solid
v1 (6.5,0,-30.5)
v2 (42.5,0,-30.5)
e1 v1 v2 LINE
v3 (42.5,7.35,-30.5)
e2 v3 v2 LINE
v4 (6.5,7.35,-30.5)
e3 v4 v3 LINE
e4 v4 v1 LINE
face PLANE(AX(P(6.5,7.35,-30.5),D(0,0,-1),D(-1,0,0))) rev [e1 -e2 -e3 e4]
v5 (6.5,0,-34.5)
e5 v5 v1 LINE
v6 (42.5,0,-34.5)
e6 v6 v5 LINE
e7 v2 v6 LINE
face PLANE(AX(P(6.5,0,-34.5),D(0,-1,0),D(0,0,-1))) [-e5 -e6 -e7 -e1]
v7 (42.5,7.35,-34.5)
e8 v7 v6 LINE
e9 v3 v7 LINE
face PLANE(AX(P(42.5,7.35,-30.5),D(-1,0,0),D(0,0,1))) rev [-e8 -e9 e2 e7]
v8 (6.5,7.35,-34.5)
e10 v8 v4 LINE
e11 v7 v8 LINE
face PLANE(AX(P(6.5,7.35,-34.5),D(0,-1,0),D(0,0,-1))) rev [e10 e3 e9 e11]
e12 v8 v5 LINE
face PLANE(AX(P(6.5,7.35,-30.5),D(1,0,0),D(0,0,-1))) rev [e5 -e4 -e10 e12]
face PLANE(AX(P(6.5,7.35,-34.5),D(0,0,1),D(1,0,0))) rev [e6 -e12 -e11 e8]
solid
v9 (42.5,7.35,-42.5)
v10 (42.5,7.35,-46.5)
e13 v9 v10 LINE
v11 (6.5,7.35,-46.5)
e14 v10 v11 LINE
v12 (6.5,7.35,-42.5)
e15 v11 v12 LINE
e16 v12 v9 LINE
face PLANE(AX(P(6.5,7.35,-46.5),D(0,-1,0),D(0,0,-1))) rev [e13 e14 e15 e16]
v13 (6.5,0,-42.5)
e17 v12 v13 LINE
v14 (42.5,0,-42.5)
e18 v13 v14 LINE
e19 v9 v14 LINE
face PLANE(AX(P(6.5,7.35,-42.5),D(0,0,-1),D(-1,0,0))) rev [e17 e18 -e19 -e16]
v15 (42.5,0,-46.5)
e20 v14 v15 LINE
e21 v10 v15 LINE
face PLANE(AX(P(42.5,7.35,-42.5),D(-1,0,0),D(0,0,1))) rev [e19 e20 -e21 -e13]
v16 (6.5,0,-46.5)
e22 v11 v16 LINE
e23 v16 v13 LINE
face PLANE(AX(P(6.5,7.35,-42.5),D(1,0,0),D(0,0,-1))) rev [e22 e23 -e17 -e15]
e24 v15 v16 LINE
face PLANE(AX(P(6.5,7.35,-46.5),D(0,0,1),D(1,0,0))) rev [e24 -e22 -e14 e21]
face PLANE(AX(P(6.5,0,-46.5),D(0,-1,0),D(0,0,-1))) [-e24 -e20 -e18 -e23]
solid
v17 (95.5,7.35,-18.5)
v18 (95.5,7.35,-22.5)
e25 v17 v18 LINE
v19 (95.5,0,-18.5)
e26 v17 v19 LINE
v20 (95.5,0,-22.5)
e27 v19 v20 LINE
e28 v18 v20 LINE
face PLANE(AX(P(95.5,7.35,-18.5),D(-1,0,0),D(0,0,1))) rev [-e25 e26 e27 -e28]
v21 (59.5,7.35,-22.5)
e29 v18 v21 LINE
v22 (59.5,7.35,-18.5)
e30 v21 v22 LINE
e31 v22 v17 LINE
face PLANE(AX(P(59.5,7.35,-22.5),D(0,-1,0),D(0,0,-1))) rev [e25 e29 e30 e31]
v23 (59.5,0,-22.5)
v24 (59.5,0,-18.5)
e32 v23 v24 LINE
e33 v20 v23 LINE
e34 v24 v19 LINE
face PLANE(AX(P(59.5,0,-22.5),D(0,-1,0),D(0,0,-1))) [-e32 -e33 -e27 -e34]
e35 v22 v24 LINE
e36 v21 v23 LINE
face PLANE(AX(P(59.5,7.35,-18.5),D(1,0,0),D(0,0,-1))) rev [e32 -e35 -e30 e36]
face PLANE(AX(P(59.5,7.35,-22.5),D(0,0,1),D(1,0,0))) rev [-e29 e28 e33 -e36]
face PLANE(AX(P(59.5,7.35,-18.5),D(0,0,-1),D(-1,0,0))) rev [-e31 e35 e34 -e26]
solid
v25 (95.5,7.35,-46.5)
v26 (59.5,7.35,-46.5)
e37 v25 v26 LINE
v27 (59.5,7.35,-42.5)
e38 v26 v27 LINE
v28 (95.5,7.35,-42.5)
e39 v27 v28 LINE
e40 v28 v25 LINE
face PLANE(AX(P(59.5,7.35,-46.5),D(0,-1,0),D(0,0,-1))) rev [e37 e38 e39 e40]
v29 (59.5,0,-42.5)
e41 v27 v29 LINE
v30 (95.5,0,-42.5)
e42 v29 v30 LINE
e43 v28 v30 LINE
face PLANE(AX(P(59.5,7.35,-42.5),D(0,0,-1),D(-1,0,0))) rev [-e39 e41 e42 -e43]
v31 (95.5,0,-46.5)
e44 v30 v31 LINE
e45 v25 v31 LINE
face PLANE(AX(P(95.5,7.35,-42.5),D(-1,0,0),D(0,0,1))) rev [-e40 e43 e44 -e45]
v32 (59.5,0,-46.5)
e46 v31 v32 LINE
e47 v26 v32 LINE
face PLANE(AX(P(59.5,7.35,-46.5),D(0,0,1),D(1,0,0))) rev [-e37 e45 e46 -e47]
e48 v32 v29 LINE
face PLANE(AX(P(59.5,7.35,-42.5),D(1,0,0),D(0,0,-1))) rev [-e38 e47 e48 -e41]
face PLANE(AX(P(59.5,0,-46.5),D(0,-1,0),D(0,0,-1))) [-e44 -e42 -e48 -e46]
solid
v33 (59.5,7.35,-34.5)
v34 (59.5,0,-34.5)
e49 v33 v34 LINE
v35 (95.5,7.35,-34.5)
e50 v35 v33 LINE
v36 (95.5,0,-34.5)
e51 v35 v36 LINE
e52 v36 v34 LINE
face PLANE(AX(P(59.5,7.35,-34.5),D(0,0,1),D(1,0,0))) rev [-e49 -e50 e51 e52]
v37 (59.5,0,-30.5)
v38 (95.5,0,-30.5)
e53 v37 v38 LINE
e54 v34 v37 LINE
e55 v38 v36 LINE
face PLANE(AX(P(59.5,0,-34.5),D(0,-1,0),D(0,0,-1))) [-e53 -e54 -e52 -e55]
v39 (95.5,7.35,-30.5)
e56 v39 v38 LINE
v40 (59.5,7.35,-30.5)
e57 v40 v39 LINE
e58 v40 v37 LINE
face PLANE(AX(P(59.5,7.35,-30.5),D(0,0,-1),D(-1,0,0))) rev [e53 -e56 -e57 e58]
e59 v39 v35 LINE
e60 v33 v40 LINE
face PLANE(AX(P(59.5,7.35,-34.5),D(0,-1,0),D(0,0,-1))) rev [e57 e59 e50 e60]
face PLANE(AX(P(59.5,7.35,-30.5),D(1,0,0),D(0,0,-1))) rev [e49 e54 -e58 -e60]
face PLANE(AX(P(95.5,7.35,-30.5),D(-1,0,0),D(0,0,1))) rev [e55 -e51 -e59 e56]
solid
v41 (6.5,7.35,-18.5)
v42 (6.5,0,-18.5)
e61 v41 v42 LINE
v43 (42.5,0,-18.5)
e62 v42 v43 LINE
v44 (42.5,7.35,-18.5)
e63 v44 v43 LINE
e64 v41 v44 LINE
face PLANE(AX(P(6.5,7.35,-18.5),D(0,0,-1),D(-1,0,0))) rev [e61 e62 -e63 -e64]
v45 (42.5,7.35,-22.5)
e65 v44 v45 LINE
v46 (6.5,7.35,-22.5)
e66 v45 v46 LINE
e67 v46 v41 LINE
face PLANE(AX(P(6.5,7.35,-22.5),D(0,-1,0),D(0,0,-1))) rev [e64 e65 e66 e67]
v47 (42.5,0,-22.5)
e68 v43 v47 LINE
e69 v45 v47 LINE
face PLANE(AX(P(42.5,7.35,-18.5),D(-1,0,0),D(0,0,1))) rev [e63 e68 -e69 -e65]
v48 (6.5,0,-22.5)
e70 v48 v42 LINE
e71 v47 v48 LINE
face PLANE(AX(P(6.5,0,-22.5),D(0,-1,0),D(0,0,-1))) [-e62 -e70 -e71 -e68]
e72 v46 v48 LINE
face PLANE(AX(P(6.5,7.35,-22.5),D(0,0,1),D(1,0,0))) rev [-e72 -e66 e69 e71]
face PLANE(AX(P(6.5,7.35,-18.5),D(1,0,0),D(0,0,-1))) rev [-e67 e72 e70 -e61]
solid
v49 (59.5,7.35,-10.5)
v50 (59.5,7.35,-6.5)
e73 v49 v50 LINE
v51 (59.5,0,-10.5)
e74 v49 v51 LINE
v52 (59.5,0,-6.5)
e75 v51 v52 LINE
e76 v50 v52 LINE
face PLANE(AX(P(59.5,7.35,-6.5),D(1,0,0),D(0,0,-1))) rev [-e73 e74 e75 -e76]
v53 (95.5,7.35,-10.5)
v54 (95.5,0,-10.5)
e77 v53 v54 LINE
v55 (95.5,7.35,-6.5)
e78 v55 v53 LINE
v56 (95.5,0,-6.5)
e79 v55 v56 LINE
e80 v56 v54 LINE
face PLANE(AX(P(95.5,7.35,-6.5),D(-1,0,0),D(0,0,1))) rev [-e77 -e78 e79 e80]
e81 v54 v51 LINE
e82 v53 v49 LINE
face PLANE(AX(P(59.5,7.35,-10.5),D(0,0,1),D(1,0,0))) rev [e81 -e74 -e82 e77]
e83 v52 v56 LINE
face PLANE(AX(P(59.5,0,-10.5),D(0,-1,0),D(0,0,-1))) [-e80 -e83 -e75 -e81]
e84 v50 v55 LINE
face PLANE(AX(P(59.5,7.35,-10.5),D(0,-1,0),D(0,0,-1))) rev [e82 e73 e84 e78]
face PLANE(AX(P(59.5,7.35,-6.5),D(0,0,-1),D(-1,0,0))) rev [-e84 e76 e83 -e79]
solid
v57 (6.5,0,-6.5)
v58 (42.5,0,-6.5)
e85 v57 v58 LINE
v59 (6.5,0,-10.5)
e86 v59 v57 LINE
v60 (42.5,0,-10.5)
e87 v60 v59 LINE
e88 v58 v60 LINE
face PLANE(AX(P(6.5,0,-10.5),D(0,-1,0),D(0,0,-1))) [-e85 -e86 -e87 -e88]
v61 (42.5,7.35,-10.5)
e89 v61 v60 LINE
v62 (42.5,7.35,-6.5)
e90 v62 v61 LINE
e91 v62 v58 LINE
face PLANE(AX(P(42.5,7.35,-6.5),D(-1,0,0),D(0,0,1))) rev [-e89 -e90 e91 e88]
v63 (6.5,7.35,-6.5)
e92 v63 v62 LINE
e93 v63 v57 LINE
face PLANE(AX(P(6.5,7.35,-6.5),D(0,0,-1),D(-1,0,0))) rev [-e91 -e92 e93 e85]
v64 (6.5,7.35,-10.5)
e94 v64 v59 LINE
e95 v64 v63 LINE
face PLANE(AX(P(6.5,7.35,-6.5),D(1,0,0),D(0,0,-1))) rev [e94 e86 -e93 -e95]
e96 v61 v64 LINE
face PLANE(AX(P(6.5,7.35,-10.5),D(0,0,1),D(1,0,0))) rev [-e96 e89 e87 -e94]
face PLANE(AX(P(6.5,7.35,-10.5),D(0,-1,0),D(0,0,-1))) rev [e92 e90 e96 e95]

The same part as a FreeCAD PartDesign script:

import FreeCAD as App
import Part
import Sketcher
Q = App.Units.Quantity


def add_polygon(sketch, points):
    """Adds a closed chain of lines whose ends are joined by coincident constraints."""
    first, n = sketch.GeometryCount, len(points)
    for a, b in zip(points, points[1:] + points[:1]):
        sketch.addGeometry(Part.LineSegment(App.Vector(*a, 0), App.Vector(*b, 0)), False)
    for i in range(n):
        sketch.addConstraint(Sketcher.Constraint("Coincident", first + i, 2, first + (i + 1) % n, 1))

doc = App.newDocument("Part")
body = doc.addObject("PartDesign::Body", "Body")

# Sketch on XZ plane
sketch1 = body.newObject("Sketcher::SketchObject", "Sketch")
sketch1.AttachmentSupport = (doc.getObject("XZ_Plane"), [""])
sketch1.MapMode = "FlatFace"
add_polygon(sketch1, [(6.5, -22.5), (6.5, -18.5), (42.5, -18.5), (42.5, -22.5)])  # lines 0-3
sketch1.addConstraint(Sketcher.Constraint("Vertical", 0))
sketch1.addConstraint(Sketcher.Constraint("Horizontal", 1))
sketch1.addConstraint(Sketcher.Constraint("Vertical", 2))
sketch1.addConstraint(Sketcher.Constraint("Horizontal", 3))
sketch1.addConstraint(Sketcher.Constraint("DistanceX", 1, 1, 1, 2, Q("36 mm")))
sketch1.addConstraint(Sketcher.Constraint("DistanceY", 0, 1, 0, 2, Q("4 mm")))
sketch1.addConstraint(Sketcher.Constraint("DistanceX", -1, 1, 0, 2, Q("6.5 mm")))
sketch1.addConstraint(Sketcher.Constraint("DistanceY", 0, 2, -1, 1, Q("18.5 mm")))
pad1 = body.newObject("PartDesign::Pad", "Pad")
pad1.Profile = sketch1
pad1.Length = 7.35
pad1.Reversed = True
body2 = doc.addObject("PartDesign::Body", "Body001")

# Sketch on XZ plane
sketch2 = body2.newObject("Sketcher::SketchObject", "Sketch001")
sketch2.AttachmentSupport = (doc.getObject("XZ_Plane001"), [""])
sketch2.MapMode = "FlatFace"
add_polygon(sketch2, [(6.5, -10.5), (6.5, -6.5), (42.5, -6.5), (42.5, -10.5)])  # lines 0-3
sketch2.addConstraint(Sketcher.Constraint("Vertical", 0))
sketch2.addConstraint(Sketcher.Constraint("Horizontal", 1))
sketch2.addConstraint(Sketcher.Constraint("Vertical", 2))
sketch2.addConstraint(Sketcher.Constraint("Horizontal", 3))
sketch2.addConstraint(Sketcher.Constraint("DistanceX", 1, 1, 1, 2, Q("36 mm")))
sketch2.addConstraint(Sketcher.Constraint("DistanceY", 0, 1, 0, 2, Q("4 mm")))
sketch2.addConstraint(Sketcher.Constraint("DistanceX", -1, 1, 0, 2, Q("6.5 mm")))
sketch2.addConstraint(Sketcher.Constraint("DistanceY", 0, 2, -1, 1, Q("6.5 mm")))
pad2 = body2.newObject("PartDesign::Pad", "Pad001")
pad2.Profile = sketch2
pad2.Length = 7.35
pad2.Reversed = True
body3 = doc.addObject("PartDesign::Body", "Body002")

# Sketch on XZ plane
sketch3 = body3.newObject("Sketcher::SketchObject", "Sketch002")
sketch3.AttachmentSupport = (doc.getObject("XZ_Plane002"), [""])
sketch3.MapMode = "FlatFace"
add_polygon(sketch3, [(6.5, -34.5), (6.5, -30.5), (42.5, -30.5), (42.5, -34.5)])  # lines 0-3
sketch3.addConstraint(Sketcher.Constraint("Vertical", 0))
sketch3.addConstraint(Sketcher.Constraint("Horizontal", 1))
sketch3.addConstraint(Sketcher.Constraint("Vertical", 2))
sketch3.addConstraint(Sketcher.Constraint("Horizontal", 3))
sketch3.addConstraint(Sketcher.Constraint("DistanceX", 1, 1, 1, 2, Q("36 mm")))
sketch3.addConstraint(Sketcher.Constraint("DistanceY", 0, 1, 0, 2, Q("4 mm")))
sketch3.addConstraint(Sketcher.Constraint("DistanceX", -1, 1, 0, 2, Q("6.5 mm")))
sketch3.addConstraint(Sketcher.Constraint("DistanceY", 0, 2, -1, 1, Q("30.5 mm")))
pad3 = body3.newObject("PartDesign::Pad", "Pad002")
pad3.Profile = sketch3
pad3.Length = 7.35
pad3.Reversed = True
body4 = doc.addObject("PartDesign::Body", "Body003")

# Sketch on XZ plane
sketch4 = body4.newObject("Sketcher::SketchObject", "Sketch003")
sketch4.AttachmentSupport = (doc.getObject("XZ_Plane003"), [""])
sketch4.MapMode = "FlatFace"
add_polygon(sketch4, [(6.5, -46.5), (6.5, -42.5), (42.5, -42.5), (42.5, -46.5)])  # lines 0-3
sketch4.addConstraint(Sketcher.Constraint("Vertical", 0))
sketch4.addConstraint(Sketcher.Constraint("Horizontal", 1))
sketch4.addConstraint(Sketcher.Constraint("Vertical", 2))
sketch4.addConstraint(Sketcher.Constraint("Horizontal", 3))
sketch4.addConstraint(Sketcher.Constraint("DistanceX", 1, 1, 1, 2, Q("36 mm")))
sketch4.addConstraint(Sketcher.Constraint("DistanceY", 0, 1, 0, 2, Q("4 mm")))
sketch4.addConstraint(Sketcher.Constraint("DistanceX", -1, 1, 0, 2, Q("6.5 mm")))
sketch4.addConstraint(Sketcher.Constraint("DistanceY", 0, 2, -1, 1, Q("42.5 mm")))
pad4 = body4.newObject("PartDesign::Pad", "Pad003")
pad4.Profile = sketch4
pad4.Length = 7.35
pad4.Reversed = True
body5 = doc.addObject("PartDesign::Body", "Body004")

# Sketch on XZ plane
sketch5 = body5.newObject("Sketcher::SketchObject", "Sketch004")
sketch5.AttachmentSupport = (doc.getObject("XZ_Plane004"), [""])
sketch5.MapMode = "FlatFace"
add_polygon(sketch5, [(59.5, -10.5), (59.5, -6.5), (95.5, -6.5), (95.5, -10.5)])  # lines 0-3
sketch5.addConstraint(Sketcher.Constraint("Vertical", 0))
sketch5.addConstraint(Sketcher.Constraint("Horizontal", 1))
sketch5.addConstraint(Sketcher.Constraint("Vertical", 2))
sketch5.addConstraint(Sketcher.Constraint("Horizontal", 3))
sketch5.addConstraint(Sketcher.Constraint("DistanceX", 1, 1, 1, 2, Q("36 mm")))
sketch5.addConstraint(Sketcher.Constraint("DistanceY", 0, 1, 0, 2, Q("4 mm")))
sketch5.addConstraint(Sketcher.Constraint("DistanceX", -1, 1, 0, 2, Q("59.5 mm")))
sketch5.addConstraint(Sketcher.Constraint("DistanceY", 0, 2, -1, 1, Q("6.5 mm")))
pad5 = body5.newObject("PartDesign::Pad", "Pad004")
pad5.Profile = sketch5
pad5.Length = 7.35
pad5.Reversed = True
body6 = doc.addObject("PartDesign::Body", "Body005")

# Sketch on XZ plane
sketch6 = body6.newObject("Sketcher::SketchObject", "Sketch005")
sketch6.AttachmentSupport = (doc.getObject("XZ_Plane005"), [""])
sketch6.MapMode = "FlatFace"
add_polygon(sketch6, [(59.5, -22.5), (59.5, -18.5), (95.5, -18.5), (95.5, -22.5)])  # lines 0-3
sketch6.addConstraint(Sketcher.Constraint("Vertical", 0))
sketch6.addConstraint(Sketcher.Constraint("Horizontal", 1))
sketch6.addConstraint(Sketcher.Constraint("Vertical", 2))
sketch6.addConstraint(Sketcher.Constraint("Horizontal", 3))
sketch6.addConstraint(Sketcher.Constraint("DistanceX", 1, 1, 1, 2, Q("36 mm")))
sketch6.addConstraint(Sketcher.Constraint("DistanceY", 0, 1, 0, 2, Q("4 mm")))
sketch6.addConstraint(Sketcher.Constraint("DistanceX", -1, 1, 0, 2, Q("59.5 mm")))
sketch6.addConstraint(Sketcher.Constraint("DistanceY", 0, 2, -1, 1, Q("18.5 mm")))
pad6 = body6.newObject("PartDesign::Pad", "Pad005")
pad6.Profile = sketch6
pad6.Length = 7.35
pad6.Reversed = True
body7 = doc.addObject("PartDesign::Body", "Body006")

# Sketch on XZ plane
sketch7 = body7.newObject("Sketcher::SketchObject", "Sketch006")
sketch7.AttachmentSupport = (doc.getObject("XZ_Plane006"), [""])
sketch7.MapMode = "FlatFace"
add_polygon(sketch7, [(59.5, -34.5), (59.5, -30.5), (95.5, -30.5), (95.5, -34.5)])  # lines 0-3
sketch7.addConstraint(Sketcher.Constraint("Vertical", 0))
sketch7.addConstraint(Sketcher.Constraint("Horizontal", 1))
sketch7.addConstraint(Sketcher.Constraint("Vertical", 2))
sketch7.addConstraint(Sketcher.Constraint("Horizontal", 3))
sketch7.addConstraint(Sketcher.Constraint("DistanceX", 1, 1, 1, 2, Q("36 mm")))
sketch7.addConstraint(Sketcher.Constraint("DistanceY", 0, 1, 0, 2, Q("4 mm")))
sketch7.addConstraint(Sketcher.Constraint("DistanceX", -1, 1, 0, 2, Q("59.5 mm")))
sketch7.addConstraint(Sketcher.Constraint("DistanceY", 0, 2, -1, 1, Q("30.5 mm")))
pad7 = body7.newObject("PartDesign::Pad", "Pad006")
pad7.Profile = sketch7
pad7.Length = 7.35
pad7.Reversed = True
body8 = doc.addObject("PartDesign::Body", "Body007")

# Sketch on XZ plane
sketch8 = body8.newObject("Sketcher::SketchObject", "Sketch007")
sketch8.AttachmentSupport = (doc.getObject("XZ_Plane007"), [""])
sketch8.MapMode = "FlatFace"
add_polygon(sketch8, [(59.5, -46.5), (59.5, -42.5), (95.5, -42.5), (95.5, -46.5)])  # lines 0-3
sketch8.addConstraint(Sketcher.Constraint("Vertical", 0))
sketch8.addConstraint(Sketcher.Constraint("Horizontal", 1))
sketch8.addConstraint(Sketcher.Constraint("Vertical", 2))
sketch8.addConstraint(Sketcher.Constraint("Horizontal", 3))
sketch8.addConstraint(Sketcher.Constraint("DistanceX", 1, 1, 1, 2, Q("36 mm")))
sketch8.addConstraint(Sketcher.Constraint("DistanceY", 0, 1, 0, 2, Q("4 mm")))
sketch8.addConstraint(Sketcher.Constraint("DistanceX", -1, 1, 0, 2, Q("59.5 mm")))
sketch8.addConstraint(Sketcher.Constraint("DistanceY", 0, 2, -1, 1, Q("42.5 mm")))
pad8 = body8.newObject("PartDesign::Pad", "Pad007")
pad8.Profile = sketch8
pad8.Length = 7.35
pad8.Reversed = True

doc.recompute()
